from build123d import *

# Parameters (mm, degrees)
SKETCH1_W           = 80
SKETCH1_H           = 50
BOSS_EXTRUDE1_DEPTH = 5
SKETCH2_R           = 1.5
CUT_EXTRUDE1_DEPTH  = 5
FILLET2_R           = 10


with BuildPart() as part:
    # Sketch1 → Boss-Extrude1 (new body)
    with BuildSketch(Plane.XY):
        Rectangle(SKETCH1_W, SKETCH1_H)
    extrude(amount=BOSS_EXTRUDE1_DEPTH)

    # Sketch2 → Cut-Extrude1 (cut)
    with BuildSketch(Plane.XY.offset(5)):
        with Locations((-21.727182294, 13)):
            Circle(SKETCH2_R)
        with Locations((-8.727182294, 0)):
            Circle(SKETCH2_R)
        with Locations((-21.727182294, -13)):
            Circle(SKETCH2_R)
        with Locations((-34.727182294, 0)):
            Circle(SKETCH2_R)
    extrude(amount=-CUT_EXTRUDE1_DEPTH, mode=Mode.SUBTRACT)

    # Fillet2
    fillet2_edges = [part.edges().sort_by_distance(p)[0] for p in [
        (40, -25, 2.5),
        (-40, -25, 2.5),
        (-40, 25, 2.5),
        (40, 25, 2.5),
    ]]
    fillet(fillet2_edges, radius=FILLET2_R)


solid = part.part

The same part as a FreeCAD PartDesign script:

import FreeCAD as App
import Part
import Sketcher
Q = App.Units.Quantity


def edges_at(feature, points):
    """Names of the edges that pass closest to the given points."""
    edges = feature.Shape.Edges
    near = lambda p: min(range(len(edges)), key=lambda i: edges[i].distToShape(Part.Vertex(*p))[0])
    return sorted({f"Edge{near(p) + 1}" for p in points})

doc = App.newDocument("Part")
body = doc.addObject("PartDesign::Body", "Body")

# Sketch on XY plane
sketch1 = doc.addObject("Sketcher::SketchObject", "Sketch")
body.addObject(sketch1)
sketch1.AttachmentSupport = (doc.XY_Plane, [""])
sketch1.MapMode = "FlatFace"
sketch1.addGeometry([
    Part.LineSegment(App.Vector(-40, 25, 0), App.Vector(-40, -25, 0)),
    Part.LineSegment(App.Vector(-40, -25, 0), App.Vector(40, -25, 0)),
    Part.LineSegment(App.Vector(40, -25, 0), App.Vector(40, 25, 0)),
    Part.LineSegment(App.Vector(40, 25, 0), App.Vector(-40, 25, 0)),
], False)
sketch1.addConstraint([
    Sketcher.Constraint("Coincident", 0, 2, 1, 1),
    Sketcher.Constraint("Coincident", 1, 2, 2, 1),
    Sketcher.Constraint("Coincident", 2, 2, 3, 1),
    Sketcher.Constraint("Coincident", 3, 2, 0, 1),
    Sketcher.Constraint("Vertical", 0),
    Sketcher.Constraint("Horizontal", 1),
    Sketcher.Constraint("Vertical", 2),
    Sketcher.Constraint("Horizontal", 3),
    Sketcher.Constraint("Symmetric", 0, 2, 2, 2, -1, 1),
    Sketcher.Constraint("DistanceX", 1, 1, 1, 2, Q("80 mm")),
    Sketcher.Constraint("DistanceY", 0, 2, 0, 1, Q("50 mm")),
])
pad1 = doc.addObject("PartDesign::Pad", "Pad")
body.addObject(pad1)
pad1.Profile = sketch1
pad1.Length = 5

# Sketch on XY plane
sketch2 = doc.addObject("Sketcher::SketchObject", "Sketch001")
body.addObject(sketch2)
sketch2.AttachmentSupport = (doc.XY_Plane, [""])
sketch2.MapMode = "FlatFace"
sketch2.AttachmentOffset = App.Placement(App.Vector(0, 0, 5), App.Rotation())
sketch2.addGeometry([
    Part.Circle(App.Vector(-21.7, 13, 0), App.Vector(0, 0, 1), 1.5),
    Part.Circle(App.Vector(-8.7, 0, 0), App.Vector(0, 0, 1), 1.5),
    Part.Circle(App.Vector(-21.7, -13, 0), App.Vector(0, 0, 1), 1.5),
    Part.Circle(App.Vector(-34.7, 0, 0), App.Vector(0, 0, 1), 1.5),
], False)
sketch2.addConstraint([
    Sketcher.Constraint("Equal", 0, 1),
    Sketcher.Constraint("Equal", 1, 2),
    Sketcher.Constraint("Equal", 2, 3),
    Sketcher.Constraint("Symmetric", 0, 3, 2, 3, -1),
    Sketcher.Constraint("PointOnObject", 1, 3, -1),
    Sketcher.Constraint("PointOnObject", 3, 3, -1),
    Sketcher.Constraint("Diameter", 0, Q("3 mm")),
    Sketcher.Constraint("DistanceY", -1, 1, 0, 3, Q("13 mm")),
    Sketcher.Constraint("DistanceX", 0, 3, 1, 3, Q("13 mm")),
    Sketcher.Constraint("DistanceX", 3, 3, 0, 3, Q("13 mm")),
    Sketcher.Constraint("DistanceX", 0, 3, -1, 1, Q("21.727182 mm")),
])
pocket1 = doc.addObject("PartDesign::Pocket", "Pocket")
body.addObject(pocket1)
pocket1.Profile = sketch2
pocket1.Length = 5
doc.recompute()

fillet = doc.addObject("PartDesign::Fillet", "Fillet")
body.addObject(fillet)
fillet.Base = (pocket1, edges_at(pocket1, [
    (40, -25, 2.5),
    (-40, -25, 2.5),
    (-40, 25, 2.5),
    (40, 25, 2.5),
]))
fillet.Radius = 10

doc.recompute()
